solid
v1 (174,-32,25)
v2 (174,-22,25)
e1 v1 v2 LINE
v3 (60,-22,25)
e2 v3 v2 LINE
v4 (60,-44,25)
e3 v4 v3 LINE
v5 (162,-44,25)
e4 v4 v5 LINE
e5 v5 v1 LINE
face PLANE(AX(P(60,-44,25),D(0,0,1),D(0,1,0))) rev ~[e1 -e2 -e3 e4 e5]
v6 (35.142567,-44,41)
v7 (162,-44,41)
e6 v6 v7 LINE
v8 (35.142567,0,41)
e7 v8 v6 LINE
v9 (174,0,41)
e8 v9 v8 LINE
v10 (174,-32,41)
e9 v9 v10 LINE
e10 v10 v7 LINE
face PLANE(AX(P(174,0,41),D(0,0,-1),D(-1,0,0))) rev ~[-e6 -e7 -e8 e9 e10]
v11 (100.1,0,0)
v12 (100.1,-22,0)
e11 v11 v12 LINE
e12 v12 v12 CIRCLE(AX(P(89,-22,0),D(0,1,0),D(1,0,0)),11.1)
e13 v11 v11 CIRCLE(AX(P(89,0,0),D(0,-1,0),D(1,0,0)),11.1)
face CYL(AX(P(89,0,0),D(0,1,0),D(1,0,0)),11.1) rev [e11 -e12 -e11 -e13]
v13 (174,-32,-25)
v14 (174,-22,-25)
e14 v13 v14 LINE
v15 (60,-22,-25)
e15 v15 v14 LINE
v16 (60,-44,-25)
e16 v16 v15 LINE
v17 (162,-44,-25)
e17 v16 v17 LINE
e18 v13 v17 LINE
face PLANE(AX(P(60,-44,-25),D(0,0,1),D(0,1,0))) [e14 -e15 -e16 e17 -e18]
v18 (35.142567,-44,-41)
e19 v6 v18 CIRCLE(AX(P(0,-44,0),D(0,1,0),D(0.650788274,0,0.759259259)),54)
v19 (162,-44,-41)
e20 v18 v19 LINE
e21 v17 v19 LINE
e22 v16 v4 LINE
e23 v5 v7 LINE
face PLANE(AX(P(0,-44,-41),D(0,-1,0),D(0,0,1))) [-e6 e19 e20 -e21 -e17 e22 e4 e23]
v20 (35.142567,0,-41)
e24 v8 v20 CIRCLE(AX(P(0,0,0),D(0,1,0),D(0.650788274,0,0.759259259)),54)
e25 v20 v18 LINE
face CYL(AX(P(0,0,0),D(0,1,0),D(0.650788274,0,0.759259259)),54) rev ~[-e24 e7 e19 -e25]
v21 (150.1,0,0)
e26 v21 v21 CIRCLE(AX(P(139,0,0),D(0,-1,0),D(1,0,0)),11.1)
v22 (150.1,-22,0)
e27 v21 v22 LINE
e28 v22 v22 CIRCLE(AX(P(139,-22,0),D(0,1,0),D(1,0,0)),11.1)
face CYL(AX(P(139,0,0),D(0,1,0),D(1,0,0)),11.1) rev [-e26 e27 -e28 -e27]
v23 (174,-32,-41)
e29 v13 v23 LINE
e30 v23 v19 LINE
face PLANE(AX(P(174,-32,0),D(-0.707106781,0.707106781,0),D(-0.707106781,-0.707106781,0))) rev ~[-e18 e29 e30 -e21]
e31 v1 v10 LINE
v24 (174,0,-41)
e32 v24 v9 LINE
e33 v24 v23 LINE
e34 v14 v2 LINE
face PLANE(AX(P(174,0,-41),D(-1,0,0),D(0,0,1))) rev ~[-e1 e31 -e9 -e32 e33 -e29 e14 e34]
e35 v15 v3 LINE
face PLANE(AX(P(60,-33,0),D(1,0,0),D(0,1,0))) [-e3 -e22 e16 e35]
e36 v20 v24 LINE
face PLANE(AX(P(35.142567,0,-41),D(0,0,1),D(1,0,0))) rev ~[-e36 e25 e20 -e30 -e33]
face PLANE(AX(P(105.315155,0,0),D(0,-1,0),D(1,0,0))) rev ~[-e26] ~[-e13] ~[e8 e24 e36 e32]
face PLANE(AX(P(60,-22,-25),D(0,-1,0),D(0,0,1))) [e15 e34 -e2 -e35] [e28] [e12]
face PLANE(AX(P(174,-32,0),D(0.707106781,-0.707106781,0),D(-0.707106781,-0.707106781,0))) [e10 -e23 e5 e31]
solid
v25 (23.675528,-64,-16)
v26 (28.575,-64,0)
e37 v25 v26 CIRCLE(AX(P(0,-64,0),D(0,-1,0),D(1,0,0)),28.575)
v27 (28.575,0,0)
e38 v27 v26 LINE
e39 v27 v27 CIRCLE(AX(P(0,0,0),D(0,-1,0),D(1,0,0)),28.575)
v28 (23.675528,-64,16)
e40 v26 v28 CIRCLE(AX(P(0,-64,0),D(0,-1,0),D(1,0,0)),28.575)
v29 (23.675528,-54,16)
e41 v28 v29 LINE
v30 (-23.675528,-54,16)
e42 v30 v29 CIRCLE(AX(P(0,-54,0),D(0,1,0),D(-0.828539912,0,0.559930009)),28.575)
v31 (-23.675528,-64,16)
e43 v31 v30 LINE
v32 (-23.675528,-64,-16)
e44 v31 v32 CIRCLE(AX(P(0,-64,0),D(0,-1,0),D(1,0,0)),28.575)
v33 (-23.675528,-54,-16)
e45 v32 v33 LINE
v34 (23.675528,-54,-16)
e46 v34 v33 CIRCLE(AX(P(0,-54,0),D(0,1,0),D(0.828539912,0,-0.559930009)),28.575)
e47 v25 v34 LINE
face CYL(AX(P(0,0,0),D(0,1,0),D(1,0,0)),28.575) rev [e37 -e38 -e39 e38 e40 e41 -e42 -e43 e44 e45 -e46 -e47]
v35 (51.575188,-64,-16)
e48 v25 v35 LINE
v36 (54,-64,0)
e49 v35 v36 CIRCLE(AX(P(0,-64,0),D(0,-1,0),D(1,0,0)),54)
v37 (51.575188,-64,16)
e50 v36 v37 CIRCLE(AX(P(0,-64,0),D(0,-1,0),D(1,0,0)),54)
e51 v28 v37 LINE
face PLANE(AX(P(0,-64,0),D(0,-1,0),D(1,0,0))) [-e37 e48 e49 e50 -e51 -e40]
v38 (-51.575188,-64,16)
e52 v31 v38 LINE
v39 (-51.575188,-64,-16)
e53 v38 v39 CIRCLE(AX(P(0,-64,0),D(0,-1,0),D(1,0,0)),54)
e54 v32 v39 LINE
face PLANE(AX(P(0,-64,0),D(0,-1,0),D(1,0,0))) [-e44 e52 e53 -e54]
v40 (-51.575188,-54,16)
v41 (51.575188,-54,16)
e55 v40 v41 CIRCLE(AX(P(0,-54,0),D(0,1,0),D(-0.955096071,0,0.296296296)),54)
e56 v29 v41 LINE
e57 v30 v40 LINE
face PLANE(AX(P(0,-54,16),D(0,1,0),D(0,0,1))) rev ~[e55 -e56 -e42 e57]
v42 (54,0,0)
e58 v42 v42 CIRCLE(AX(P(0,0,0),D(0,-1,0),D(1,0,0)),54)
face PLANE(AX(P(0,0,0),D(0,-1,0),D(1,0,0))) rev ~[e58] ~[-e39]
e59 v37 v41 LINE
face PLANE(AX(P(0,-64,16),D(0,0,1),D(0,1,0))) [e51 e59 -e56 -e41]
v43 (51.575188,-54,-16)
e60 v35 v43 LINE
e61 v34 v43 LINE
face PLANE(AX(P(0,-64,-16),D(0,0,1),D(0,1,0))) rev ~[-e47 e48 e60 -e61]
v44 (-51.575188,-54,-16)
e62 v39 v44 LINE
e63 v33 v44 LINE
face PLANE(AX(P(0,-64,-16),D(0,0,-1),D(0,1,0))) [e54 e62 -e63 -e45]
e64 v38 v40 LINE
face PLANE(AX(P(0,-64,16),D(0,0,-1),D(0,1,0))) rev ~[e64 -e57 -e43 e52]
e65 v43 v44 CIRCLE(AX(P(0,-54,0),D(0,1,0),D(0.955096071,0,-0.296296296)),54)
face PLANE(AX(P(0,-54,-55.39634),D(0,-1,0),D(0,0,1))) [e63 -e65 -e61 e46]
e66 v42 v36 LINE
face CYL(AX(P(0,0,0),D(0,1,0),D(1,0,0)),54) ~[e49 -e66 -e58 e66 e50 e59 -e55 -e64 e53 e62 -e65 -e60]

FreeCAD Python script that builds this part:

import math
import FreeCAD as App
import Part
import Sketcher
Q = App.Units.Quantity

doc = App.newDocument("Part")
body = doc.addObject("PartDesign::Body", "Body")

sketch1 = body.newObject("Sketcher::SketchObject", "Sketch")
sketch1.AttachmentSupport = (doc.getObject("XZ_Plane"), [""])
sketch1.MapMode = "FlatFace"
sketch1.addGeometry([
    Part.Circle(App.Vector(0, 0, 0), App.Vector(0, 0, 1), 54),
    Part.Circle(App.Vector(0, 0, 0), App.Vector(0, 0, 1), 29),
], False)
sketch1.addConstraint([
    Sketcher.Constraint("Coincident", 0, 3, -1, 1),
    Sketcher.Constraint("Coincident", 1, 3, -1, 1),
    Sketcher.Constraint("Diameter", 0, Q("108 mm")),
    Sketcher.Constraint("Diameter", 1, Q("57.15 mm")),
])
pad1 = body.newObject("PartDesign::Pad", "Pad")
pad1.Profile = sketch1
pad1.Length = 64

sketch2 = body.newObject("Sketcher::SketchObject", "Sketch001")
sketch2.AttachmentSupport = (doc.getObject("YZ_Plane"), [""])
sketch2.MapMode = "FlatFace"
sketch2.addGeometry([
    Part.LineSegment(App.Vector(-64, 55, 0), App.Vector(-64, 16, 0)),
    Part.LineSegment(App.Vector(-64, 16, 0), App.Vector(-54, 16, 0)),
    Part.LineSegment(App.Vector(-54, 16, 0), App.Vector(-54, 55, 0)),
    Part.LineSegment(App.Vector(-54, 55, 0), App.Vector(-64, 55, 0)),
    Part.LineSegment(App.Vector(-64, -16, 0), App.Vector(-64, -55, 0)),
    Part.LineSegment(App.Vector(-64, -55, 0), App.Vector(-54, -55, 0)),
    Part.LineSegment(App.Vector(-54, -55, 0), App.Vector(-54, -16, 0)),
    Part.LineSegment(App.Vector(-54, -16, 0), App.Vector(-64, -16, 0)),
], False)
sketch2.addConstraint([
    Sketcher.Constraint("Coincident", 0, 2, 1, 1),
    Sketcher.Constraint("Coincident", 1, 2, 2, 1),
    Sketcher.Constraint("Coincident", 2, 2, 3, 1),
    Sketcher.Constraint("Coincident", 3, 2, 0, 1),
    Sketcher.Constraint("Coincident", 4, 2, 5, 1),
    Sketcher.Constraint("Coincident", 5, 2, 6, 1),
    Sketcher.Constraint("Coincident", 6, 2, 7, 1),
    Sketcher.Constraint("Coincident", 7, 2, 4, 1),
    Sketcher.Constraint("Horizontal", 1),
    Sketcher.Constraint("Vertical", 2),
    Sketcher.Constraint("Horizontal", 3),
    Sketcher.Constraint("Vertical", 4),
    Sketcher.Constraint("Horizontal", 5),
    Sketcher.Constraint("Vertical", 6),
    Sketcher.Constraint("Horizontal", 7),
    Sketcher.Constraint("Symmetric", 1, 2, 6, 2, -1),
    Sketcher.Constraint("Vertical", 0, 2, 4, 2),
    Sketcher.Constraint("DistanceX", 1, 1, 1, 2, Q("10 mm")),
    Sketcher.Constraint("DistanceX", 0, 2, -1, 1, Q("64 mm")),
    Sketcher.Constraint("DistanceY", -1, 1, 0, 2, Q("16 mm")),
    Sketcher.Constraint("DistanceY", 4, 2, 3, 2, Q("110 mm")),
    Sketcher.Constraint("DistanceX", 3, 2, 3, 1, Q("10.024032 mm")),
    Sketcher.Constraint("DistanceY", 2, 1, 2, 2, Q("38.60366 mm")),
])
pocket1 = body.newObject("PartDesign::Pocket", "Pocket")
pocket1.Profile = sketch2
pocket1.Type = "ThroughAll"
pocket1.Midplane = True
body2 = doc.addObject("PartDesign::Body", "Body001")

sketch3 = body2.newObject("Sketcher::SketchObject", "Sketch002")
sketch3.AttachmentSupport = (doc.getObject("XZ_Plane001"), [""])
sketch3.MapMode = "FlatFace"
sketch3.addGeometry([
    Part.LineSegment(App.Vector(174, 41, 0), App.Vector(35, 41, 0)),
    Part.ArcOfCircle(Part.Circle(App.Vector(0, 0, 0), App.Vector(0, 0, 1), 54), math.radians(-49), math.radians(49)),
    Part.LineSegment(App.Vector(35, -41, 0), App.Vector(174, -41, 0)),
    Part.LineSegment(App.Vector(174, -41, 0), App.Vector(174, 41, 0)),
    Part.Circle(App.Vector(89, 0, 0), App.Vector(0, 0, 1), 11),
    Part.Circle(App.Vector(139, 0, 0), App.Vector(0, 0, 1), 11),
], False)
sketch3.addConstraint([
    Sketcher.Constraint("Coincident", 0, 2, 1, 2),
    Sketcher.Constraint("Coincident", 1, 1, 2, 1),
    Sketcher.Constraint("Coincident", 2, 2, 3, 1),
    Sketcher.Constraint("Coincident", 3, 2, 0, 1),
    Sketcher.Constraint("Horizontal", 0),
    Sketcher.Constraint("Horizontal", 2),
    Sketcher.Constraint("Vertical", 3),
    Sketcher.Constraint("Coincident", 1, 3, -1, 1),
    Sketcher.Constraint("Equal", 4, 5),
    Sketcher.Constraint("PointOnObject", 4, 3, -1),
    Sketcher.Constraint("PointOnObject", 5, 3, -1),
    Sketcher.Constraint("Vertical", 0, 2, 1, 1),
    Sketcher.Constraint("Radius", 1, Q("54 mm")),
    Sketcher.Constraint("Diameter", 4, Q("22.2 mm")),
    Sketcher.Constraint("DistanceY", 3, 1, 3, 2, Q("82 mm")),
    Sketcher.Constraint("DistanceX", -1, 1, 4, 3, Q("89 mm")),
    Sketcher.Constraint("DistanceX", -1, 1, 5, 3, Q("139 mm")),
    Sketcher.Constraint("DistanceX", -1, 1, 2, 2, Q("174 mm")),
])
pad2 = body2.newObject("PartDesign::Pad", "Pad001")
pad2.Profile = sketch3
pad2.Length = 64

sketch4 = body2.newObject("Sketcher::SketchObject", "Sketch003")
sketch4.AttachmentSupport = (doc.getObject("YZ_Plane001"), [""])
sketch4.MapMode = "FlatFace"
sketch4.addGeometry([
    Part.LineSegment(App.Vector(-64, 41, 0), App.Vector(-64, -41, 0)),
    Part.LineSegment(App.Vector(-64, -41, 0), App.Vector(-44, -41, 0)),
    Part.LineSegment(App.Vector(-44, -41, 0), App.Vector(-44, 41, 0)),
    Part.LineSegment(App.Vector(-44, 41, 0), App.Vector(-64, 41, 0)),
], False)
sketch4.addConstraint([
    Sketcher.Constraint("Coincident", 0, 2, 1, 1),
    Sketcher.Constraint("Coincident", 1, 2, 2, 1),
    Sketcher.Constraint("Coincident", 2, 2, 3, 1),
    Sketcher.Constraint("Coincident", 3, 2, 0, 1),
    Sketcher.Constraint("Vertical", 0),
    Sketcher.Constraint("Horizontal", 1),
    Sketcher.Constraint("Vertical", 2),
    Sketcher.Constraint("Horizontal", 3),
    Sketcher.Constraint("DistanceX", 1, 1, 1, 2, Q("20 mm")),
    Sketcher.Constraint("DistanceY", 0, 2, 0, 1, Q("82 mm")),
    Sketcher.Constraint("DistanceX", 0, 2, -1, 1, Q("64 mm")),
    Sketcher.Constraint("DistanceY", 0, 2, -1, 1, Q("41 mm")),
])
pocket2 = body2.newObject("PartDesign::Pocket", "Pocket001")
pocket2.Profile = sketch4
pocket2.Type = "ThroughAll"
pocket2.Reversed = True

sketch5 = body2.newObject("Sketcher::SketchObject", "Sketch004")
sketch5.AttachmentSupport = (doc.getObject("YZ_Plane001"), [""])
sketch5.MapMode = "FlatFace"
sketch5.AttachmentOffset = App.Placement(App.Vector(0, 0, 60), App.Rotation())
sketch5.addGeometry([
    Part.LineSegment(App.Vector(-44, 25, 0), App.Vector(-44, -25, 0)),
    Part.LineSegment(App.Vector(-44, -25, 0), App.Vector(-22, -25, 0)),
    Part.LineSegment(App.Vector(-22, -25, 0), App.Vector(-22, 25, 0)),
    Part.LineSegment(App.Vector(-22, 25, 0), App.Vector(-44, 25, 0)),
], False)
sketch5.addConstraint([
    Sketcher.Constraint("Coincident", 0, 2, 1, 1),
    Sketcher.Constraint("Coincident", 1, 2, 2, 1),
    Sketcher.Constraint("Coincident", 2, 2, 3, 1),
    Sketcher.Constraint("Coincident", 3, 2, 0, 1),
    Sketcher.Constraint("Vertical", 0),
    Sketcher.Constraint("Horizontal", 1),
    Sketcher.Constraint("Vertical", 2),
    Sketcher.Constraint("Horizontal", 3),
    Sketcher.Constraint("DistanceX", 1, 1, 1, 2, Q("22 mm")),
    Sketcher.Constraint("DistanceY", 0, 2, 0, 1, Q("50 mm")),
    Sketcher.Constraint("DistanceX", 0, 2, -1, 1, Q("44 mm")),
    Sketcher.Constraint("DistanceY", 0, 2, -1, 1, Q("25 mm")),
])
pocket3 = body2.newObject("PartDesign::Pocket", "Pocket002")
pocket3.Profile = sketch5
pocket3.Length = 114
pocket3.Reversed = True

sketch6 = body2.newObject("Sketcher::SketchObject", "Sketch005")
sketch6.AttachmentSupport = (doc.getObject("XY_Plane001"), [""])
sketch6.MapMode = "FlatFace"
sketch6.addGeometry([
    Part.LineSegment(App.Vector(162, -44, 0), App.Vector(174, -44, 0)),
    Part.LineSegment(App.Vector(174, -44, 0), App.Vector(174, -32, 0)),
    Part.LineSegment(App.Vector(174, -32, 0), App.Vector(162, -44, 0)),
], False)
sketch6.addConstraint([
    Sketcher.Constraint("Coincident", 0, 2, 1, 1),
    Sketcher.Constraint("Coincident", 1, 2, 2, 1),
    Sketcher.Constraint("Coincident", 2, 2, 0, 1),
    Sketcher.Constraint("Horizontal", 0),
    Sketcher.Constraint("Vertical", 1),
    Sketcher.Constraint("Equal", 0, 1),
    Sketcher.Constraint("DistanceX", 0, 1, 0, 2, Q("12 mm")),
    Sketcher.Constraint("DistanceX", -1, 1, 0, 2, Q("174 mm")),
    Sketcher.Constraint("DistanceY", 0, 2, -1, 1, Q("44 mm")),
])
pocket4 = body2.newObject("PartDesign::Pocket", "Pocket003")
pocket4.Profile = sketch6
pocket4.Type = "ThroughAll"
pocket4.Midplane = True

doc.recompute()
